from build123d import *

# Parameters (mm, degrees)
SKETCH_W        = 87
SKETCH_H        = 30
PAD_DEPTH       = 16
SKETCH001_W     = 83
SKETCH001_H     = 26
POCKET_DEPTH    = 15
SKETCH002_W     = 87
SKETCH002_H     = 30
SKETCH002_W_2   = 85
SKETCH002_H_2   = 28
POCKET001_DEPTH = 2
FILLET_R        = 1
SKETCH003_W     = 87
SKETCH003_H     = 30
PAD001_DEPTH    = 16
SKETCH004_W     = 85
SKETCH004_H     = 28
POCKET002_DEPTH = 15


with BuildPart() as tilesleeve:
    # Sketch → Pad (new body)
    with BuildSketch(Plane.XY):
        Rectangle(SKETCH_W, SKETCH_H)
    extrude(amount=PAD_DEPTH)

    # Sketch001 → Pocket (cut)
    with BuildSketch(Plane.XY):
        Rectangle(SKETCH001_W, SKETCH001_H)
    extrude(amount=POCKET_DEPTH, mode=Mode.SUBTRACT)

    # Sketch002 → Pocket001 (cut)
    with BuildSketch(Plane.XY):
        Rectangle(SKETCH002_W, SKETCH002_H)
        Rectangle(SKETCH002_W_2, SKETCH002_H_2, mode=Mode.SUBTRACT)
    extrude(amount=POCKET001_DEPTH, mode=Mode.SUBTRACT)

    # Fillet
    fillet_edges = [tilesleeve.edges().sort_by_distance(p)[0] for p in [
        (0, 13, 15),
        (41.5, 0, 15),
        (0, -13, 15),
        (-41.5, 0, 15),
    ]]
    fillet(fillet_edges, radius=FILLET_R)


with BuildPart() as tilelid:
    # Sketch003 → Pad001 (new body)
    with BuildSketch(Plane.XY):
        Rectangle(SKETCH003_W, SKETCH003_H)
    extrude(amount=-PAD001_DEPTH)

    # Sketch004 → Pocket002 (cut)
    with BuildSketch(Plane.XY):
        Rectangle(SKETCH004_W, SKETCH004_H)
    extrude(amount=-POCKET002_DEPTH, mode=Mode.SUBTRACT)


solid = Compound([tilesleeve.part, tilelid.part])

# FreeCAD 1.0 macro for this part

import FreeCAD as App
import Part
import Sketcher


def edges_at(feature, points):
    """Names of the edges that pass closest to the given points."""
    edges = feature.Shape.Edges
    near = lambda p: min(range(len(edges)), key=lambda i: edges[i].distToShape(Part.Vertex(*p))[0])
    return sorted({f"Edge{near(p) + 1}" for p in points})


def add_polygon(sketch, points):
    """Adds a closed chain of lines whose ends are joined by coincident constraints."""
    first, n = sketch.GeometryCount, len(points)
    for a, b in zip(points, points[1:] + points[:1]):
        sketch.addGeometry(Part.LineSegment(App.Vector(*a, 0), App.Vector(*b, 0)), False)
    for i in range(n):
        sketch.addConstraint(Sketcher.Constraint("Coincident", first + i, 2, first + (i + 1) % n, 1))

doc = App.newDocument("Part")
params = doc.addObject("Spreadsheet::Sheet", "Params")
for row, (alias, value) in enumerate([
    ("sketch1_width", "87 mm"),
    ("sketch1_height", "30 mm"),
    ("pad1_length", "16 mm"),
    ("sketch2_width", "83 mm"),
    ("sketch2_height", "26 mm"),
    ("pocket1_length", "15 mm"),
    ("sketch3_width", "87 mm"),
    ("sketch3_width2", "85 mm"),
    ("sketch3_height", "30 mm"),
    ("sketch3_height2", "28 mm"),
    ("pocket2_length", "2 mm"),
    ("fillet_radius", "1 mm"),
    ("sketch4_width", "87 mm"),
    ("sketch4_height", "30 mm"),
    ("pad2_length", "16 mm"),
    ("sketch5_width", "85 mm"),
    ("sketch5_height", "28 mm"),
    ("pocket3_length", "15 mm"),
], start=1):
    params.set(f"A{row}", alias)
    params.set(f"B{row}", "=" + value)
    params.setAlias(f"B{row}", alias)

body = doc.addObject("PartDesign::Body", "Body")

sketch1 = body.newObject("Sketcher::SketchObject", "Sketch")
sketch1.AttachmentSupport = (doc.getObject("XY_Plane"), [""])
sketch1.MapMode = "FlatFace"
add_polygon(sketch1, [(-44, 15), (-44, -15), (44, -15), (44, 15)])
sketch1.addConstraint(Sketcher.Constraint("Vertical", 0))
sketch1.addConstraint(Sketcher.Constraint("Horizontal", 1))
sketch1.addConstraint(Sketcher.Constraint("Vertical", 2))
sketch1.addConstraint(Sketcher.Constraint("Horizontal", 3))
sketch1.addConstraint(Sketcher.Constraint("Symmetric", 0, 2, 2, 2, -1, 1))
sketch1.addConstraint(Sketcher.Constraint("DistanceX", 1, 1, 1, 2, 87.0))
sketch1.addConstraint(Sketcher.Constraint("DistanceY", 0, 2, 0, 1, 30.0))
sketch1.setExpression("Constraints[9]", "Params.sketch1_width")
sketch1.setExpression("Constraints[10]", "Params.sketch1_height")
pad1 = body.newObject("PartDesign::Pad", "Pad")
pad1.Profile = sketch1
pad1.setExpression("Length", "Params.pad1_length")

sketch2 = body.newObject("Sketcher::SketchObject", "Sketch001")
sketch2.AttachmentSupport = (doc.getObject("XY_Plane"), [""])
sketch2.MapMode = "FlatFace"
add_polygon(sketch2, [(-42, 13), (-42, -13), (42, -13), (42, 13)])
sketch2.addConstraint(Sketcher.Constraint("Vertical", 0))
sketch2.addConstraint(Sketcher.Constraint("Horizontal", 1))
sketch2.addConstraint(Sketcher.Constraint("Vertical", 2))
sketch2.addConstraint(Sketcher.Constraint("Horizontal", 3))
sketch2.addConstraint(Sketcher.Constraint("Symmetric", 0, 2, 2, 2, -1, 1))
sketch2.addConstraint(Sketcher.Constraint("DistanceX", 1, 1, 1, 2, 83.0))
sketch2.addConstraint(Sketcher.Constraint("DistanceY", 0, 2, 0, 1, 26.0))
sketch2.setExpression("Constraints[9]", "Params.sketch2_width")
sketch2.setExpression("Constraints[10]", "Params.sketch2_height")
pocket1 = body.newObject("PartDesign::Pocket", "Pocket")
pocket1.Profile = sketch2
pocket1.setExpression("Length", "Params.pocket1_length")
pocket1.Reversed = True

sketch3 = body.newObject("Sketcher::SketchObject", "Sketch002")
sketch3.AttachmentSupport = (doc.getObject("XY_Plane"), [""])
sketch3.MapMode = "FlatFace"
add_polygon(sketch3, [(-44, 15), (-44, -15), (44, -15), (44, 15)])
add_polygon(sketch3, [(42, -14), (-42, -14), (-42, 14), (42, 14)])
sketch3.addConstraint(Sketcher.Constraint("Vertical", 0))
sketch3.addConstraint(Sketcher.Constraint("Horizontal", 1))
sketch3.addConstraint(Sketcher.Constraint("Vertical", 2))
sketch3.addConstraint(Sketcher.Constraint("Horizontal", 3))
sketch3.addConstraint(Sketcher.Constraint("Horizontal", 4))
sketch3.addConstraint(Sketcher.Constraint("Vertical", 5))
sketch3.addConstraint(Sketcher.Constraint("Horizontal", 6))
sketch3.addConstraint(Sketcher.Constraint("Vertical", 7))
sketch3.addConstraint(Sketcher.Constraint("Symmetric", 0, 2, 2, 2, -1, 1))
sketch3.addConstraint(Sketcher.Constraint("Symmetric", 4, 2, 6, 2, -1, 1))
sketch3.addConstraint(Sketcher.Constraint("DistanceX", 1, 1, 1, 2, 87.0))
sketch3.addConstraint(Sketcher.Constraint("DistanceX", 4, 2, 4, 1, 85.0))
sketch3.addConstraint(Sketcher.Constraint("DistanceY", 0, 2, 0, 1, 30.0))
sketch3.addConstraint(Sketcher.Constraint("DistanceY", 5, 1, 5, 2, 28.0))
sketch3.setExpression("Constraints[18]", "Params.sketch3_width")
sketch3.setExpression("Constraints[19]", "Params.sketch3_width2")
sketch3.setExpression("Constraints[20]", "Params.sketch3_height")
sketch3.setExpression("Constraints[21]", "Params.sketch3_height2")
pocket2 = body.newObject("PartDesign::Pocket", "Pocket001")
pocket2.Profile = sketch3
pocket2.setExpression("Length", "Params.pocket2_length")
pocket2.Reversed = True
doc.recompute()

fillet = body.newObject("PartDesign::Fillet", "Fillet")
fillet.Base = (pocket2, edges_at(pocket2, [
    (0, 13, 15),
    (41.5, 0, 15),
    (0, -13, 15),
    (-41.5, 0, 15),
]))
fillet.setExpression("Radius", "Params.fillet_radius")
body2 = doc.addObject("PartDesign::Body", "Body001")

sketch4 = body2.newObject("Sketcher::SketchObject", "Sketch003")
sketch4.AttachmentSupport = (doc.getObject("XY_Plane001"), [""])
sketch4.MapMode = "FlatFace"
add_polygon(sketch4, [(-44, 15), (-44, -15), (44, -15), (44, 15)])
sketch4.addConstraint(Sketcher.Constraint("Vertical", 0))
sketch4.addConstraint(Sketcher.Constraint("Horizontal", 1))
sketch4.addConstraint(Sketcher.Constraint("Vertical", 2))
sketch4.addConstraint(Sketcher.Constraint("Horizontal", 3))
sketch4.addConstraint(Sketcher.Constraint("Symmetric", 0, 2, 2, 2, -1, 1))
sketch4.addConstraint(Sketcher.Constraint("DistanceX", 1, 1, 1, 2, 87.0))
sketch4.addConstraint(Sketcher.Constraint("DistanceY", 0, 2, 0, 1, 30.0))
sketch4.setExpression("Constraints[9]", "Params.sketch4_width")
sketch4.setExpression("Constraints[10]", "Params.sketch4_height")
pad2 = body2.newObject("PartDesign::Pad", "Pad001")
pad2.Profile = sketch4
pad2.setExpression("Length", "Params.pad2_length")
pad2.Reversed = True

sketch5 = body2.newObject("Sketcher::SketchObject", "Sketch004")
sketch5.AttachmentSupport = (doc.getObject("XY_Plane001"), [""])
sketch5.MapMode = "FlatFace"
add_polygon(sketch5, [(-42, 14), (-42, -14), (42, -14), (42, 14)])
sketch5.addConstraint(Sketcher.Constraint("Vertical", 0))
sketch5.addConstraint(Sketcher.Constraint("Horizontal", 1))
sketch5.addConstraint(Sketcher.Constraint("Vertical", 2))
sketch5.addConstraint(Sketcher.Constraint("Horizontal", 3))
sketch5.addConstraint(Sketcher.Constraint("Symmetric", 0, 2, 2, 2, -1, 1))
sketch5.addConstraint(Sketcher.Constraint("DistanceX", 1, 1, 1, 2, 85.0))
sketch5.addConstraint(Sketcher.Constraint("DistanceY", 0, 2, 0, 1, 28.0))
sketch5.setExpression("Constraints[9]", "Params.sketch5_width")
sketch5.setExpression("Constraints[10]", "Params.sketch5_height")
pocket3 = body2.newObject("PartDesign::Pocket", "Pocket002")
pocket3.Profile = sketch5
pocket3.setExpression("Length", "Params.pocket3_length")

doc.recompute()
